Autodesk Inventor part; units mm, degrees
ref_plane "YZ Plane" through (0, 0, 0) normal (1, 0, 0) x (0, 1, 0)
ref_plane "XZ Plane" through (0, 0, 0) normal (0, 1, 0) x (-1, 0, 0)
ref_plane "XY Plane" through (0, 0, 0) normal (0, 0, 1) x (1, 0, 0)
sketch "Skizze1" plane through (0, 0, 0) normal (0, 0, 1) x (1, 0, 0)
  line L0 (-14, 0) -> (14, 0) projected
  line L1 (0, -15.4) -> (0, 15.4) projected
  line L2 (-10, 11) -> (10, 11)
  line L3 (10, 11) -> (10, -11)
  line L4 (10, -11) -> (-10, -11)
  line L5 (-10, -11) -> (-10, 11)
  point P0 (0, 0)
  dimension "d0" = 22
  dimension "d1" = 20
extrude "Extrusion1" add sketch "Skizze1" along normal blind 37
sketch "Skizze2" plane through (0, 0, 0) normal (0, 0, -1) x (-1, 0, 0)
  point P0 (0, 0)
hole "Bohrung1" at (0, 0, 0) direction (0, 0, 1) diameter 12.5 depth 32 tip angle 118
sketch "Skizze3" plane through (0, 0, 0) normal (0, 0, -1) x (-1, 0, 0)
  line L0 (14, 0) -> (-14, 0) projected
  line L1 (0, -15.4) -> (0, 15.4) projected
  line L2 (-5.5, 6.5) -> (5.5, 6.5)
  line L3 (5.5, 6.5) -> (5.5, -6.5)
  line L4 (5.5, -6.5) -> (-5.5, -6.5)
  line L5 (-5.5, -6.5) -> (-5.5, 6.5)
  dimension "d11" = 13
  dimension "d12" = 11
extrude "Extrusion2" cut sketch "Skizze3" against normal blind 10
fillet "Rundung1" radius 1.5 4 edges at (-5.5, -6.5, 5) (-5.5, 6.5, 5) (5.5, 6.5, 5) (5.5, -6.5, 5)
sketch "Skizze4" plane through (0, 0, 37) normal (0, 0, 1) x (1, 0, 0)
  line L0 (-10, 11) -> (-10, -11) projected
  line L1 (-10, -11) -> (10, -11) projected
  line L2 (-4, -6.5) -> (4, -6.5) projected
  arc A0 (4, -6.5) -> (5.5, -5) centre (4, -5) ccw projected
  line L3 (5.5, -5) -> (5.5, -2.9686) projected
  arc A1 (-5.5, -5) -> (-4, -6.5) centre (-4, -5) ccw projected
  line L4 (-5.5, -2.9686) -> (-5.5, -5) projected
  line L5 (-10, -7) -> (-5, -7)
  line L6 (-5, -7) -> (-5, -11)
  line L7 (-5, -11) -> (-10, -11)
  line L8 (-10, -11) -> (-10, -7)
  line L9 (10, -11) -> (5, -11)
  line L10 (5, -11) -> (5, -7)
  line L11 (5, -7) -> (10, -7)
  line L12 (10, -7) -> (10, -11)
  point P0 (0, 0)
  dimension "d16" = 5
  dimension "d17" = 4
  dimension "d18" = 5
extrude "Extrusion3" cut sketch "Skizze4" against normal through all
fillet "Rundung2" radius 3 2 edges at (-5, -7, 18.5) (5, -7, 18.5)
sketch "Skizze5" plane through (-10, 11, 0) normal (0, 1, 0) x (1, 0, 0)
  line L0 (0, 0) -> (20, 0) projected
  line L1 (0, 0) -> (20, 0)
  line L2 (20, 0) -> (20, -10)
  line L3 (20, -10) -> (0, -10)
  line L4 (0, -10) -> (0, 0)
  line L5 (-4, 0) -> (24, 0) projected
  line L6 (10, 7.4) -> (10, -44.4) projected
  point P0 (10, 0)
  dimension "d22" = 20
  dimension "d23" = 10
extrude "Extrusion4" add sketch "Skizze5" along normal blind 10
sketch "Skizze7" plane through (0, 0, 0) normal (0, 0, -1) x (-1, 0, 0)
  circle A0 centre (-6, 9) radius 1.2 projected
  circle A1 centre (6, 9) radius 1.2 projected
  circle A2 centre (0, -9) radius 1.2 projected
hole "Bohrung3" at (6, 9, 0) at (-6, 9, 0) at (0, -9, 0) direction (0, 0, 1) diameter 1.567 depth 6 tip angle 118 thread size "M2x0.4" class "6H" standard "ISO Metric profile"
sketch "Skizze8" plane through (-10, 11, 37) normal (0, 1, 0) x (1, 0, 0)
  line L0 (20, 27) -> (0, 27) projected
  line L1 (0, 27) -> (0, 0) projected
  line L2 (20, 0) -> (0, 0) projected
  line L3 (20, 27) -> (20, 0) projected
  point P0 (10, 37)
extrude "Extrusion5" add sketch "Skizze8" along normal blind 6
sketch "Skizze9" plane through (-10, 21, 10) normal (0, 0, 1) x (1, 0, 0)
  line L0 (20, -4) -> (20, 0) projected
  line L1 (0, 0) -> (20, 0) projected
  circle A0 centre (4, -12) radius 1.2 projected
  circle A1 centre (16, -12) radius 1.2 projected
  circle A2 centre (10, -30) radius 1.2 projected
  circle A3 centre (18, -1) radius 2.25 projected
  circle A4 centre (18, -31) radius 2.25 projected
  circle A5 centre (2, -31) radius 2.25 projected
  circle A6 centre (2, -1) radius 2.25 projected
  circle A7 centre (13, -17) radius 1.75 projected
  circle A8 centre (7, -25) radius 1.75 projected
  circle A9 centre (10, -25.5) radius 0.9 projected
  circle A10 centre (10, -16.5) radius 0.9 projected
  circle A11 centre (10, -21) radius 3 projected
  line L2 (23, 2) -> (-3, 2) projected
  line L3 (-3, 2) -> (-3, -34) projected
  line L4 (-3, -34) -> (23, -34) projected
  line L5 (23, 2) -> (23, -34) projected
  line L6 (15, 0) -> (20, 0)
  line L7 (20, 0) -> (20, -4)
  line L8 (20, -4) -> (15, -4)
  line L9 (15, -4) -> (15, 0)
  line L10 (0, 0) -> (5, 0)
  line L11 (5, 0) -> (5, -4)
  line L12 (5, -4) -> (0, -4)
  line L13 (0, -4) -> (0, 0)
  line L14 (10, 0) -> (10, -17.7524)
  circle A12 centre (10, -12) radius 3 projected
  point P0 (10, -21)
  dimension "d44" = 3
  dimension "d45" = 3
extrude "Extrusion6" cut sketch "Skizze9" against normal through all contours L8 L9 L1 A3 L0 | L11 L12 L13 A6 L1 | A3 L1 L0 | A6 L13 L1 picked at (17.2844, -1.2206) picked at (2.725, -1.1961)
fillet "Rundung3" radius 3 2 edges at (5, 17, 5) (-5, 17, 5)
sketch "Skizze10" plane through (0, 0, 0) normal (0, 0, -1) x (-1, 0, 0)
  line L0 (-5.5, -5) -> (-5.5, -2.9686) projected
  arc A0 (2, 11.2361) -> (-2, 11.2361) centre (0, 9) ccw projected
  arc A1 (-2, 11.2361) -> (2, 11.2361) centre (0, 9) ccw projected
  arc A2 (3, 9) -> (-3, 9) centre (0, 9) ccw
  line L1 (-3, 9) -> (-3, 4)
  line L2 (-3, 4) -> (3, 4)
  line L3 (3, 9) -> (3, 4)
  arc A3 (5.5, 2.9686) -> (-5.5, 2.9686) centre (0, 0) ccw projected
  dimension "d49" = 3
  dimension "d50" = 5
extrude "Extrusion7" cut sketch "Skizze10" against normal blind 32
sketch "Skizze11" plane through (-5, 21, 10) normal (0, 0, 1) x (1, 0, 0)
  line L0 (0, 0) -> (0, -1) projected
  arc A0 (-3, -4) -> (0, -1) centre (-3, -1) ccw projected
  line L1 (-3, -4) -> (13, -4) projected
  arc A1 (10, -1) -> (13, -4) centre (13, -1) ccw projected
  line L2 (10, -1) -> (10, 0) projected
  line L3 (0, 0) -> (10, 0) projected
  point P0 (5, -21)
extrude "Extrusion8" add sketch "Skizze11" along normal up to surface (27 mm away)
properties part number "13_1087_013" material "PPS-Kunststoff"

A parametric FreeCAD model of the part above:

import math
import FreeCAD as App
import Part
import Sketcher
Q = App.Units.Quantity


def edges_at(feature, points):
    """Names of the edges that pass closest to the given points."""
    edges = feature.Shape.Edges
    near = lambda p: min(range(len(edges)), key=lambda i: edges[i].distToShape(Part.Vertex(*p))[0])
    return sorted({f"Edge{near(p) + 1}" for p in points})

doc = App.newDocument("Part")
params = doc.addObject("Spreadsheet::Sheet", "Params")
for row, (alias, value) in enumerate([
    ("sketch1_width", "20 mm"),
    ("sketch1_height", "22 mm"),
    ("pad1_length", "37 mm"),
    ("sketch2_diameter", "12.5 mm"),
    ("hole_diameter", "12.5 mm"),
    ("hole_depth", "32 mm"),
    ("sketch3_width", "11 mm"),
    ("sketch3_height", "13 mm"),
    ("pocket1_length", "10 mm"),
    ("fillet_radius", "1.5 mm"),
    ("sketch4_width", "5 mm"),
    ("sketch4_height", "4 mm"),
    ("fillet2_radius", "3 mm"),
    ("sketch5_width", "20 mm"),
    ("sketch5_height", "10 mm"),
    ("pad2_length", "10 mm"),
    ("hole2_diameter", "1.567 mm"),
    ("hole2_depth", "6 mm"),
    ("sketch7_width", "20 mm"),
    ("sketch7_height", "27 mm"),
    ("pad3_length", "6 mm"),
    ("sketch8_width", "5 mm"),
    ("sketch8_height", "4 mm"),
    ("fillet3_radius", "3 mm"),
    ("sketch9_radius", "3 mm"),
    ("sketch9_height", "5 mm"),
    ("pocket4_length", "32 mm"),
    ("sketch10_radius", "3 mm"),
    ("sketch10_width", "10 mm"),
    ("sketch10_height", "1 mm"),
    ("pad4_length", "27 mm"),
], start=1):
    params.set(f"A{row}", alias)
    params.set(f"B{row}", "=" + value)
    params.setAlias(f"B{row}", alias)

body = doc.addObject("PartDesign::Body", "Body")

# Sketch on XY plane
sketch1 = body.newObject("Sketcher::SketchObject", "Sketch")
sketch1.AttachmentSupport = (doc.getObject("XY_Plane"), [""])
sketch1.MapMode = "FlatFace"
sketch1.addGeometry(Part.LineSegment(App.Vector(-10, 11, 0), App.Vector(-10, -11, 0)), False)
sketch1.addGeometry(Part.LineSegment(App.Vector(-10, -11, 0), App.Vector(10, -11, 0)), False)
sketch1.addGeometry(Part.LineSegment(App.Vector(10, -11, 0), App.Vector(10, 11, 0)), False)
sketch1.addGeometry(Part.LineSegment(App.Vector(10, 11, 0), App.Vector(-10, 11, 0)), False)
sketch1.addConstraint(Sketcher.Constraint("Coincident", 0, 2, 1, 1))
sketch1.addConstraint(Sketcher.Constraint("Coincident", 1, 2, 2, 1))
sketch1.addConstraint(Sketcher.Constraint("Coincident", 2, 2, 3, 1))
sketch1.addConstraint(Sketcher.Constraint("Coincident", 3, 2, 0, 1))
sketch1.addConstraint(Sketcher.Constraint("Vertical", 0))
sketch1.addConstraint(Sketcher.Constraint("Horizontal", 1))
sketch1.addConstraint(Sketcher.Constraint("Vertical", 2))
sketch1.addConstraint(Sketcher.Constraint("Horizontal", 3))
sketch1.addConstraint(Sketcher.Constraint("Symmetric", 0, 2, 2, 2, -1, 1))
sketch1.addConstraint(Sketcher.Constraint("DistanceX", 1, 1, 1, 2, Q("20 mm")))
sketch1.addConstraint(Sketcher.Constraint("DistanceY", 0, 2, 0, 1, Q("22 mm")))
sketch1.setExpression("Constraints[9]", "Params.sketch1_width")
sketch1.setExpression("Constraints[10]", "Params.sketch1_height")
pad1 = body.newObject("PartDesign::Pad", "Pad")
pad1.Profile = sketch1
pad1.setExpression("Length", "Params.pad1_length")

# Sketch on XY plane
sketch2 = body.newObject("Sketcher::SketchObject", "Sketch001")
sketch2.AttachmentSupport = (doc.getObject("XY_Plane"), [""])
sketch2.MapMode = "FlatFace"
sketch2.addGeometry(Part.Circle(App.Vector(0, 0, 0), App.Vector(0, 0, 1), 6), False)
sketch2.addConstraint(Sketcher.Constraint("Coincident", 0, 3, -1, 1))
sketch2.addConstraint(Sketcher.Constraint("Diameter", 0, Q("12.5 mm")))
sketch2.setExpression("Constraints[1]", "Params.sketch2_diameter")
doc.recompute()
hole = body.newObject("PartDesign::Hole", "Hole")
hole.Profile = sketch2
hole.ThreadType = "None"
hole.setExpression("Diameter", "Params.hole_diameter")
hole.DepthType = "Dimension"
hole.setExpression("Depth", "Params.hole_depth")
hole.DrillPoint = "Angled"
hole.DrillPointAngle = 118
hole.Reversed = True

# Sketch on XY plane
sketch3 = body.newObject("Sketcher::SketchObject", "Sketch002")
sketch3.AttachmentSupport = (doc.getObject("XY_Plane"), [""])
sketch3.MapMode = "FlatFace"
sketch3.addGeometry(Part.LineSegment(App.Vector(-6, -6, 0), App.Vector(-6, 6, 0)), False)
sketch3.addGeometry(Part.LineSegment(App.Vector(-6, 6, 0), App.Vector(6, 6, 0)), False)
sketch3.addGeometry(Part.LineSegment(App.Vector(6, 6, 0), App.Vector(6, -6, 0)), False)
sketch3.addGeometry(Part.LineSegment(App.Vector(6, -6, 0), App.Vector(-6, -6, 0)), False)
sketch3.addConstraint(Sketcher.Constraint("Coincident", 0, 2, 1, 1))
sketch3.addConstraint(Sketcher.Constraint("Coincident", 1, 2, 2, 1))
sketch3.addConstraint(Sketcher.Constraint("Coincident", 2, 2, 3, 1))
sketch3.addConstraint(Sketcher.Constraint("Coincident", 3, 2, 0, 1))
sketch3.addConstraint(Sketcher.Constraint("Vertical", 0))
sketch3.addConstraint(Sketcher.Constraint("Horizontal", 1))
sketch3.addConstraint(Sketcher.Constraint("Vertical", 2))
sketch3.addConstraint(Sketcher.Constraint("Horizontal", 3))
sketch3.addConstraint(Sketcher.Constraint("Symmetric", 0, 2, 2, 2, -1, 1))
sketch3.addConstraint(Sketcher.Constraint("DistanceX", 1, 1, 1, 2, Q("11 mm")))
sketch3.addConstraint(Sketcher.Constraint("DistanceY", 0, 1, 0, 2, Q("13 mm")))
sketch3.setExpression("Constraints[9]", "Params.sketch3_width")
sketch3.setExpression("Constraints[10]", "Params.sketch3_height")
pocket1 = body.newObject("PartDesign::Pocket", "Pocket")
pocket1.Profile = sketch3
pocket1.setExpression("Length", "Params.pocket1_length")
pocket1.Reversed = True
doc.recompute()

fillet = body.newObject("PartDesign::Fillet", "Fillet")
fillet.Base = (pocket1, edges_at(pocket1, [
    (-5.5, -6.5, 5),
    (-5.5, 6.5, 5),
    (5.5, 6.5, 5),
    (5.5, -6.5, 5),
]))
fillet.setExpression("Radius", "Params.fillet_radius")

# Sketch on XY plane
sketch4 = body.newObject("Sketcher::SketchObject", "Sketch003")
sketch4.AttachmentSupport = (doc.getObject("XY_Plane"), [""])
sketch4.MapMode = "FlatFace"
sketch4.AttachmentOffset = App.Placement(App.Vector(0, 0, 37), App.Rotation())
sketch4.addGeometry(Part.LineSegment(App.Vector(-5, -7, 0), App.Vector(-10, -7, 0)), False)
sketch4.addGeometry(Part.LineSegment(App.Vector(-10, -7, 0), App.Vector(-10, -11, 0)), False)
sketch4.addGeometry(Part.LineSegment(App.Vector(-10, -11, 0), App.Vector(-5, -11, 0)), False)
sketch4.addGeometry(Part.LineSegment(App.Vector(-5, -11, 0), App.Vector(-5, -7, 0)), False)
sketch4.addGeometry(Part.LineSegment(App.Vector(5, -7, 0), App.Vector(5, -11, 0)), False)
sketch4.addGeometry(Part.LineSegment(App.Vector(5, -11, 0), App.Vector(10, -11, 0)), False)
sketch4.addGeometry(Part.LineSegment(App.Vector(10, -11, 0), App.Vector(10, -7, 0)), False)
sketch4.addGeometry(Part.LineSegment(App.Vector(10, -7, 0), App.Vector(5, -7, 0)), False)
sketch4.addConstraint(Sketcher.Constraint("Coincident", 0, 2, 1, 1))
sketch4.addConstraint(Sketcher.Constraint("Coincident", 1, 2, 2, 1))
sketch4.addConstraint(Sketcher.Constraint("Coincident", 2, 2, 3, 1))
sketch4.addConstraint(Sketcher.Constraint("Coincident", 3, 2, 0, 1))
sketch4.addConstraint(Sketcher.Constraint("Coincident", 4, 2, 5, 1))
sketch4.addConstraint(Sketcher.Constraint("Coincident", 5, 2, 6, 1))
sketch4.addConstraint(Sketcher.Constraint("Coincident", 6, 2, 7, 1))
sketch4.addConstraint(Sketcher.Constraint("Coincident", 7, 2, 4, 1))
sketch4.addConstraint(Sketcher.Constraint("Horizontal", 0))
sketch4.addConstraint(Sketcher.Constraint("Vertical", 1))
sketch4.addConstraint(Sketcher.Constraint("Horizontal", 2))
sketch4.addConstraint(Sketcher.Constraint("Vertical", 3))
sketch4.addConstraint(Sketcher.Constraint("Vertical", 4))
sketch4.addConstraint(Sketcher.Constraint("Horizontal", 5))
sketch4.addConstraint(Sketcher.Constraint("Vertical", 6))
sketch4.addConstraint(Sketcher.Constraint("Horizontal", 7))
sketch4.addConstraint(Sketcher.Constraint("Symmetric", 2, 2, 4, 2, -2))
sketch4.addConstraint(Sketcher.Constraint("Symmetric", 0, 2, 6, 2, -2))
sketch4.addConstraint(Sketcher.Constraint("DistanceX", 0, 2, 0, 1, Q("5 mm")))
sketch4.addConstraint(Sketcher.Constraint("DistanceY", 1, 2, 1, 1, Q("4 mm")))
sketch4.addConstraint(Sketcher.Constraint("DistanceX", 2, 2, -1, 1, Q("5 mm")))
sketch4.addConstraint(Sketcher.Constraint("DistanceY", 0, 2, -1, 1, Q("7 mm")))
sketch4.setExpression("Constraints[18]", "Params.sketch4_width")
sketch4.setExpression("Constraints[19]", "Params.sketch4_height")
pocket2 = body.newObject("PartDesign::Pocket", "Pocket001")
pocket2.Profile = sketch4
pocket2.Type = "ThroughAll"
doc.recompute()

fillet2 = body.newObject("PartDesign::Fillet", "Fillet001")
fillet2.Base = (pocket2, edges_at(pocket2, [(-5, -7, 18.5), (5, -7, 18.5)]))
fillet2.setExpression("Radius", "Params.fillet2_radius")

# Sketch on XZ plane
sketch5 = body.newObject("Sketcher::SketchObject", "Sketch004")
sketch5.AttachmentSupport = (doc.getObject("XZ_Plane"), [""])
sketch5.MapMode = "FlatFace"
sketch5.AttachmentOffset = App.Placement(App.Vector(0, 0, -11), App.Rotation())
sketch5.addGeometry(Part.LineSegment(App.Vector(-10, 0, 0), App.Vector(-10, 10, 0)), False)
sketch5.addGeometry(Part.LineSegment(App.Vector(-10, 10, 0), App.Vector(10, 10, 0)), False)
sketch5.addGeometry(Part.LineSegment(App.Vector(10, 10, 0), App.Vector(10, 0, 0)), False)
sketch5.addGeometry(Part.LineSegment(App.Vector(10, 0, 0), App.Vector(-10, 0, 0)), False)
sketch5.addConstraint(Sketcher.Constraint("Coincident", 0, 2, 1, 1))
sketch5.addConstraint(Sketcher.Constraint("Coincident", 1, 2, 2, 1))
sketch5.addConstraint(Sketcher.Constraint("Coincident", 2, 2, 3, 1))
sketch5.addConstraint(Sketcher.Constraint("Coincident", 3, 2, 0, 1))
sketch5.addConstraint(Sketcher.Constraint("Vertical", 0))
sketch5.addConstraint(Sketcher.Constraint("Horizontal", 1))
sketch5.addConstraint(Sketcher.Constraint("Vertical", 2))
sketch5.addConstraint(Sketcher.Constraint("Horizontal", 3))
sketch5.addConstraint(Sketcher.Constraint("Symmetric", 2, 2, 3, 2, -1, 1))
sketch5.addConstraint(Sketcher.Constraint("DistanceX", 1, 1, 1, 2, Q("20 mm")))
sketch5.addConstraint(Sketcher.Constraint("DistanceY", 0, 1, 0, 2, Q("10 mm")))
sketch5.setExpression("Constraints[9]", "Params.sketch5_width")
sketch5.setExpression("Constraints[10]", "Params.sketch5_height")
pad2 = body.newObject("PartDesign::Pad", "Pad001")
pad2.Profile = sketch5
pad2.setExpression("Length", "Params.pad2_length")
pad2.Reversed = True

# Sketch on XY plane
sketch6 = body.newObject("Sketcher::SketchObject", "Sketch005")
sketch6.AttachmentSupport = (doc.getObject("XY_Plane"), [""])
sketch6.MapMode = "FlatFace"
sketch6.addGeometry(Part.Circle(App.Vector(6, 9, 0), App.Vector(0, 0, 1), 0.8), False)
sketch6.addGeometry(Part.Circle(App.Vector(-6, 9, 0), App.Vector(0, 0, 1), 0.8), False)
sketch6.addGeometry(Part.Circle(App.Vector(0, -9, 0), App.Vector(0, 0, 1), 0.8), False)
sketch6.addConstraint(Sketcher.Constraint("Equal", 0, 1))
sketch6.addConstraint(Sketcher.Constraint("Equal", 1, 2))
sketch6.addConstraint(Sketcher.Constraint("Symmetric", 0, 3, 1, 3, -2))
sketch6.addConstraint(Sketcher.Constraint("PointOnObject", 2, 3, -2))
sketch6.addConstraint(Sketcher.Constraint("Diameter", 0, Q("1.567 mm")))
sketch6.addConstraint(Sketcher.Constraint("DistanceX", -1, 1, 0, 3, Q("6 mm")))
sketch6.addConstraint(Sketcher.Constraint("DistanceY", -1, 1, 0, 3, Q("9 mm")))
sketch6.addConstraint(Sketcher.Constraint("DistanceY", 2, 3, -1, 1, Q("9 mm")))
doc.recompute()
hole2 = body.newObject("PartDesign::Hole", "Hole001")
hole2.Profile = sketch6
hole2.ThreadType = "None"
hole2.setExpression("Diameter", "Params.hole2_diameter")
hole2.DepthType = "Dimension"
hole2.setExpression("Depth", "Params.hole2_depth")
hole2.DrillPoint = "Angled"
hole2.DrillPointAngle = 118
hole2.Reversed = True

# Sketch on XZ plane
sketch7 = body.newObject("Sketcher::SketchObject", "Sketch006")
sketch7.AttachmentSupport = (doc.getObject("XZ_Plane"), [""])
sketch7.MapMode = "FlatFace"
sketch7.AttachmentOffset = App.Placement(App.Vector(0, 0, -11), App.Rotation())
sketch7.addGeometry(Part.LineSegment(App.Vector(10, 37, 0), App.Vector(10, 10, 0)), False)
sketch7.addGeometry(Part.LineSegment(App.Vector(10, 10, 0), App.Vector(-10, 10, 0)), False)
sketch7.addGeometry(Part.LineSegment(App.Vector(-10, 10, 0), App.Vector(-10, 37, 0)), False)
sketch7.addGeometry(Part.LineSegment(App.Vector(-10, 37, 0), App.Vector(10, 37, 0)), False)
sketch7.addConstraint(Sketcher.Constraint("Coincident", 0, 2, 1, 1))
sketch7.addConstraint(Sketcher.Constraint("Coincident", 1, 2, 2, 1))
sketch7.addConstraint(Sketcher.Constraint("Coincident", 2, 2, 3, 1))
sketch7.addConstraint(Sketcher.Constraint("Coincident", 3, 2, 0, 1))
sketch7.addConstraint(Sketcher.Constraint("Vertical", 0))
sketch7.addConstraint(Sketcher.Constraint("Horizontal", 1))
sketch7.addConstraint(Sketcher.Constraint("Vertical", 2))
sketch7.addConstraint(Sketcher.Constraint("Horizontal", 3))
sketch7.addConstraint(Sketcher.Constraint("DistanceX", 1, 2, 1, 1, Q("20 mm")))
sketch7.addConstraint(Sketcher.Constraint("DistanceY", 0, 2, 0, 1, Q("27 mm")))
sketch7.addConstraint(Sketcher.Constraint("DistanceX", -1, 1, 0, 2, Q("10 mm")))
sketch7.addConstraint(Sketcher.Constraint("DistanceY", -1, 1, 0, 2, Q("10 mm")))
sketch7.setExpression("Constraints[8]", "Params.sketch7_width")
sketch7.setExpression("Constraints[9]", "Params.sketch7_height")
pad3 = body.newObject("PartDesign::Pad", "Pad002")
pad3.Profile = sketch7
pad3.setExpression("Length", "Params.pad3_length")
pad3.Reversed = True

# Sketch on XY plane
sketch8 = body.newObject("Sketcher::SketchObject", "Sketch007")
sketch8.AttachmentSupport = (doc.getObject("XY_Plane"), [""])
sketch8.MapMode = "FlatFace"
sketch8.AttachmentOffset = App.Placement(App.Vector(0, 0, 10), App.Rotation())
sketch8.addGeometry(Part.LineSegment(App.Vector(5, 17, 0), App.Vector(10, 17, 0)), False)
sketch8.addGeometry(Part.LineSegment(App.Vector(10, 17, 0), App.Vector(10, 21, 0)), False)
sketch8.addGeometry(Part.LineSegment(App.Vector(10, 21, 0), App.Vector(5, 21, 0)), False)
sketch8.addGeometry(Part.LineSegment(App.Vector(5, 21, 0), App.Vector(5, 17, 0)), False)
sketch8.addGeometry(Part.LineSegment(App.Vector(-5, 17, 0), App.Vector(-5, 21, 0)), False)
sketch8.addGeometry(Part.LineSegment(App.Vector(-5, 21, 0), App.Vector(-10, 21, 0)), False)
sketch8.addGeometry(Part.LineSegment(App.Vector(-10, 21, 0), App.Vector(-10, 17, 0)), False)
sketch8.addGeometry(Part.LineSegment(App.Vector(-10, 17, 0), App.Vector(-5, 17, 0)), False)
sketch8.addConstraint(Sketcher.Constraint("Coincident", 0, 2, 1, 1))
sketch8.addConstraint(Sketcher.Constraint("Coincident", 1, 2, 2, 1))
sketch8.addConstraint(Sketcher.Constraint("Coincident", 2, 2, 3, 1))
sketch8.addConstraint(Sketcher.Constraint("Coincident", 3, 2, 0, 1))
sketch8.addConstraint(Sketcher.Constraint("Coincident", 4, 2, 5, 1))
sketch8.addConstraint(Sketcher.Constraint("Coincident", 5, 2, 6, 1))
sketch8.addConstraint(Sketcher.Constraint("Coincident", 6, 2, 7, 1))
sketch8.addConstraint(Sketcher.Constraint("Coincident", 7, 2, 4, 1))
sketch8.addConstraint(Sketcher.Constraint("Horizontal", 0))
sketch8.addConstraint(Sketcher.Constraint("Vertical", 1))
sketch8.addConstraint(Sketcher.Constraint("Horizontal", 2))
sketch8.addConstraint(Sketcher.Constraint("Vertical", 3))
sketch8.addConstraint(Sketcher.Constraint("Vertical", 4))
sketch8.addConstraint(Sketcher.Constraint("Horizontal", 5))
sketch8.addConstraint(Sketcher.Constraint("Vertical", 6))
sketch8.addConstraint(Sketcher.Constraint("Horizontal", 7))
sketch8.addConstraint(Sketcher.Constraint("Symmetric", 2, 2, 4, 2, -2))
sketch8.addConstraint(Sketcher.Constraint("Symmetric", 0, 2, 6, 2, -2))
sketch8.addConstraint(Sketcher.Constraint("DistanceX", 0, 1, 0, 2, Q("5 mm")))
sketch8.addConstraint(Sketcher.Constraint("DistanceY", 1, 1, 1, 2, Q("4 mm")))
sketch8.addConstraint(Sketcher.Constraint("DistanceX", -1, 1, 0, 2, Q("10 mm")))
sketch8.addConstraint(Sketcher.Constraint("DistanceY", -1, 1, 0, 2, Q("17 mm")))
sketch8.setExpression("Constraints[18]", "Params.sketch8_width")
sketch8.setExpression("Constraints[19]", "Params.sketch8_height")
pocket3 = body.newObject("PartDesign::Pocket", "Pocket002")
pocket3.Profile = sketch8
pocket3.Type = "ThroughAll"
doc.recompute()

fillet3 = body.newObject("PartDesign::Fillet", "Fillet002")
fillet3.Base = (pocket3, edges_at(pocket3, [(5, 17, 5), (-5, 17, 5)]))
fillet3.setExpression("Radius", "Params.fillet3_radius")

# Sketch on XY plane
sketch9 = body.newObject("Sketcher::SketchObject", "Sketch008")
sketch9.AttachmentSupport = (doc.getObject("XY_Plane"), [""])
sketch9.MapMode = "FlatFace"
sketch9.addGeometry(Part.ArcOfCircle(Part.Circle(App.Vector(0, 9, 0), App.Vector(0, 0, 1), 3), math.radians(0), math.radians(180)), False)
sketch9.addGeometry(Part.LineSegment(App.Vector(3, 9, 0), App.Vector(3, 4, 0)), False)
sketch9.addGeometry(Part.LineSegment(App.Vector(3, 4, 0), App.Vector(-3, 4, 0)), False)
sketch9.addGeometry(Part.LineSegment(App.Vector(-3, 4, 0), App.Vector(-3, 9, 0)), False)
sketch9.addConstraint(Sketcher.Constraint("Tangent", 0, 1, 1, 1))
sketch9.addConstraint(Sketcher.Constraint("Coincident", 1, 2, 2, 1))
sketch9.addConstraint(Sketcher.Constraint("Coincident", 2, 2, 3, 1))
sketch9.addConstraint(Sketcher.Constraint("Tangent", 3, 2, 0, 2))
sketch9.addConstraint(Sketcher.Constraint("Vertical", 1))
sketch9.addConstraint(Sketcher.Constraint("Horizontal", 2))
sketch9.addConstraint(Sketcher.Constraint("Vertical", 3))
sketch9.addConstraint(Sketcher.Constraint("PointOnObject", 0, 3, -2))
sketch9.addConstraint(Sketcher.Constraint("Radius", 0, Q("3 mm")))
sketch9.addConstraint(Sketcher.Constraint("DistanceY", 1, 2, 1, 1, Q("5 mm")))
sketch9.addConstraint(Sketcher.Constraint("DistanceY", -1, 1, 0, 3, Q("9 mm")))
sketch9.setExpression("Constraints[8]", "Params.sketch9_radius")
sketch9.setExpression("Constraints[9]", "Params.sketch9_height")
pocket4 = body.newObject("PartDesign::Pocket", "Pocket003")
pocket4.Profile = sketch9
pocket4.setExpression("Length", "Params.pocket4_length")
pocket4.Reversed = True

# Sketch on XY plane
sketch10 = body.newObject("Sketcher::SketchObject", "Sketch009")
sketch10.AttachmentSupport = (doc.getObject("XY_Plane"), [""])
sketch10.MapMode = "FlatFace"
sketch10.AttachmentOffset = App.Placement(App.Vector(0, 0, 10), App.Rotation())
sketch10.addGeometry(Part.LineSegment(App.Vector(5, 21, 0), App.Vector(-5, 21, 0)), False)
sketch10.addGeometry(Part.LineSegment(App.Vector(-5, 21, 0), App.Vector(-5, 20, 0)), False)
sketch10.addGeometry(Part.ArcOfCircle(Part.Circle(App.Vector(-8, 20, 0), App.Vector(0, 0, 1), 3), math.radians(-90), math.radians(0)), False)
sketch10.addGeometry(Part.LineSegment(App.Vector(-8, 17, 0), App.Vector(8, 17, 0)), False)
sketch10.addGeometry(Part.ArcOfCircle(Part.Circle(App.Vector(8, 20, 0), App.Vector(0, 0, 1), 3), math.radians(180), math.radians(270)), False)
sketch10.addGeometry(Part.LineSegment(App.Vector(5, 20, 0), App.Vector(5, 21, 0)), False)
sketch10.addConstraint(Sketcher.Constraint("Coincident", 0, 2, 1, 1))
sketch10.addConstraint(Sketcher.Constraint("Tangent", 1, 2, 2, 2))
sketch10.addConstraint(Sketcher.Constraint("Tangent", 2, 1, 3, 1))
sketch10.addConstraint(Sketcher.Constraint("Tangent", 3, 2, 4, 2))
sketch10.addConstraint(Sketcher.Constraint("Tangent", 4, 1, 5, 1))
sketch10.addConstraint(Sketcher.Constraint("Coincident", 5, 2, 0, 1))
sketch10.addConstraint(Sketcher.Constraint("Horizontal", 0))
sketch10.addConstraint(Sketcher.Constraint("Vertical", 1))
sketch10.addConstraint(Sketcher.Constraint("Horizontal", 3))
sketch10.addConstraint(Sketcher.Constraint("Vertical", 5))
sketch10.addConstraint(Sketcher.Constraint("Equal", 2, 4))
sketch10.addConstraint(Sketcher.Constraint("Radius", 2, Q("3 mm")))
sketch10.addConstraint(Sketcher.Constraint("DistanceX", 0, 2, 0, 1, Q("10 mm")))
sketch10.addConstraint(Sketcher.Constraint("DistanceY", 1, 2, 1, 1, Q("1 mm")))
sketch10.addConstraint(Sketcher.Constraint("DistanceX", 2, 3, -1, 1, Q("8 mm")))
sketch10.addConstraint(Sketcher.Constraint("DistanceY", -1, 1, 2, 3, Q("20 mm")))
sketch10.setExpression("Constraints[11]", "Params.sketch10_radius")
sketch10.setExpression("Constraints[12]", "Params.sketch10_width")
sketch10.setExpression("Constraints[13]", "Params.sketch10_height")
pad4 = body.newObject("PartDesign::Pad", "Pad003")
pad4.Profile = sketch10
pad4.setExpression("Length", "Params.pad4_length")

doc.recompute()
